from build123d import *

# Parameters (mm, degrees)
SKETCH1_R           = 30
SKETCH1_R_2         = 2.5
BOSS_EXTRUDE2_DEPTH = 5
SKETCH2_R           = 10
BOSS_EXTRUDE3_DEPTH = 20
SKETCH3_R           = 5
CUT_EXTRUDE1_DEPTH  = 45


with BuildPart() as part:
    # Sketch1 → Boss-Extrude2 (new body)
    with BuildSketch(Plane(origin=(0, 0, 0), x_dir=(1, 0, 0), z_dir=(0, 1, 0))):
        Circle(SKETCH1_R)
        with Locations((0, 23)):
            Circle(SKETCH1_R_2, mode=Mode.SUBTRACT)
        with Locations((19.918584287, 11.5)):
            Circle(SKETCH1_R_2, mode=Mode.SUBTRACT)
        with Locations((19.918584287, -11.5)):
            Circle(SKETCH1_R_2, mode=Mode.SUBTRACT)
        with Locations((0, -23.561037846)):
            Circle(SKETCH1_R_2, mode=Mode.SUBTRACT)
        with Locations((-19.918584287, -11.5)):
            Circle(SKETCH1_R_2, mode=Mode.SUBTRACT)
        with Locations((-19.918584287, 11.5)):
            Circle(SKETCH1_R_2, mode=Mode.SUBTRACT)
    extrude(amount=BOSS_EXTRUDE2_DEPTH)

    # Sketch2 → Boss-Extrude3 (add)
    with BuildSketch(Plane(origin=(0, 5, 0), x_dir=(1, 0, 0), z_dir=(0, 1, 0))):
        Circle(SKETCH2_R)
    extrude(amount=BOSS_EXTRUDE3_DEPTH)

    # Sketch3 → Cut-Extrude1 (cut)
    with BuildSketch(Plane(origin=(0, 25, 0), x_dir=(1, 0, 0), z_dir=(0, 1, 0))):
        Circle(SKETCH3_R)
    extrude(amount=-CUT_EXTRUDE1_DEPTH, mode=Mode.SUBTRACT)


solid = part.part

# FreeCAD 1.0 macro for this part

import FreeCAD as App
import Part
import Sketcher
from FreeCAD import Vector

doc = App.newDocument("Part")
body = doc.addObject("PartDesign::Body", "Body")

# Sketch on XZ plane
sketch1 = body.newObject("Sketcher::SketchObject", "Sketch")
sketch1.AttachmentSupport = (doc.getObject("XZ_Plane"), [""])
sketch1.MapMode = "FlatFace"
sketch1.addGeometry([
    Part.Circle(Vector(0, 0, 0), Vector(0, 0, 1), 30),  # 0
    Part.Circle(Vector(-19.918584, 11.5, 0), Vector(0, 0, 1), 2.5),  # 1
    Part.Circle(Vector(0, 23.561038, 0), Vector(0, 0, 1), 2.5),  # 2
    Part.Circle(Vector(19.918584, 11.5, 0), Vector(0, 0, 1), 2.5),  # 3
    Part.Circle(Vector(-19.918584, -11.5, 0), Vector(0, 0, 1), 2.5),  # 4
    Part.Circle(Vector(19.918584, -11.5, 0), Vector(0, 0, 1), 2.5),  # 5
    Part.Circle(Vector(0, -23, 0), Vector(0, 0, 1), 2.5),  # 6
], False)
sketch1.addConstraint([
    Sketcher.Constraint("Coincident", 0, 3, -1, 1),
    Sketcher.Constraint("Equal", 1, 2),
    Sketcher.Constraint("Equal", 2, 3),
    Sketcher.Constraint("Equal", 3, 4),
    Sketcher.Constraint("Equal", 4, 5),
    Sketcher.Constraint("Equal", 5, 6),
    Sketcher.Constraint("Symmetric", 3, 3, 4, 3, -1, 1),
    Sketcher.Constraint("Symmetric", 1, 3, 5, 3, -1, 1),
    Sketcher.Constraint("Symmetric", 1, 3, 3, 3, -2),
    Sketcher.Constraint("PointOnObject", 2, 3, -2),
    Sketcher.Constraint("PointOnObject", 6, 3, -2),
    Sketcher.Constraint("Diameter", 0, 60.0),
    Sketcher.Constraint("Diameter", 1, 5.0),
    Sketcher.Constraint("DistanceY", 6, 3, -1, 1, 23.0),
    Sketcher.Constraint("DistanceY", 4, 3, 1, 3, 23.0),
    Sketcher.Constraint("DistanceX", 1, 3, 3, 3, 39.837169),
    Sketcher.Constraint("DistanceY", -1, 1, 2, 3, 23.561038),
])
pad1 = body.newObject("PartDesign::Pad", "Pad")
pad1.Profile = sketch1
pad1.Length = 5
pad1.Reversed = True

# Sketch on XZ plane
sketch2 = body.newObject("Sketcher::SketchObject", "Sketch001")
sketch2.AttachmentSupport = (doc.getObject("XZ_Plane"), [""])
sketch2.MapMode = "FlatFace"
sketch2.AttachmentOffset = App.Placement(Vector(0, 0, -5), App.Rotation())
sketch2.addGeometry(Part.Circle(Vector(0, 0, 0), Vector(0, 0, 1), 10), False)
sketch2.addConstraint([
    Sketcher.Constraint("Coincident", 0, 3, -1, 1),
    Sketcher.Constraint("Diameter", 0, 20.0),
])
pad2 = body.newObject("PartDesign::Pad", "Pad001")
pad2.Profile = sketch2
pad2.Length = 20
pad2.Reversed = True

# Sketch on XZ plane
sketch3 = body.newObject("Sketcher::SketchObject", "Sketch002")
sketch3.AttachmentSupport = (doc.getObject("XZ_Plane"), [""])
sketch3.MapMode = "FlatFace"
sketch3.AttachmentOffset = App.Placement(Vector(0, 0, -25), App.Rotation())
sketch3.addGeometry(Part.Circle(Vector(0, 0, 0), Vector(0, 0, 1), 5), False)
sketch3.addConstraint([
    Sketcher.Constraint("Coincident", 0, 3, -1, 1),
    Sketcher.Constraint("Diameter", 0, 10.0),
])
pocket1 = body.newObject("PartDesign::Pocket", "Pocket")
pocket1.Profile = sketch3
pocket1.Length = 45
pocket1.Reversed = True

doc.recompute()
